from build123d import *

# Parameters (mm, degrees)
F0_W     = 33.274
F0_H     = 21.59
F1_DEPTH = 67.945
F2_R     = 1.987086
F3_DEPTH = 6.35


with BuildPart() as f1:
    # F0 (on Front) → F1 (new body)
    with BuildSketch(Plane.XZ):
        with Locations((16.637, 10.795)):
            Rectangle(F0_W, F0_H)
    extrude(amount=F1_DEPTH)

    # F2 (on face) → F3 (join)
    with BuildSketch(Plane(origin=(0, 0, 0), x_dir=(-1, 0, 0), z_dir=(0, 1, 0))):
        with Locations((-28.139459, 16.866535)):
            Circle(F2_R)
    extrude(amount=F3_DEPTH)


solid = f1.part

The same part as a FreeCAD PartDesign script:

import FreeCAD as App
import Part
import Sketcher

V = App.Vector
Q = App.Units.Quantity


def add_polygon(sketch, points):
    """Adds a closed chain of lines whose ends are joined by coincident constraints."""
    first, n = sketch.GeometryCount, len(points)
    for a, b in zip(points, points[1:] + points[:1]):
        sketch.addGeometry(Part.LineSegment(App.Vector(*a, 0), App.Vector(*b, 0)), False)
    for i in range(n):
        sketch.addConstraint(Sketcher.Constraint("Coincident", first + i, 2, first + (i + 1) % n, 1))

doc = App.newDocument("Part")
body = doc.addObject("PartDesign::Body", "Body")

# Sketch on XZ plane
sketch1 = body.newObject("Sketcher::SketchObject", "Sketch")
sketch1.AttachmentSupport = (doc.getObject("XZ_Plane"), [""])
sketch1.MapMode = "FlatFace"
add_polygon(sketch1, [(0, 22), (0, 0), (33, 0), (33, 22)])  # lines 0-3
sketch1.addConstraint([
    Sketcher.Constraint("Vertical", 0),
    Sketcher.Constraint("Horizontal", 1),
    Sketcher.Constraint("Vertical", 2),
    Sketcher.Constraint("Horizontal", 3),
    Sketcher.Constraint("Coincident", 0, 2, -1, 1),
    Sketcher.Constraint("DistanceX", 1, 1, 1, 2, Q("1.31 in")),
    Sketcher.Constraint("DistanceY", 0, 2, 0, 1, Q("0.85 in")),
])
pad1 = body.newObject("PartDesign::Pad", "Pad")
pad1.Profile = sketch1
pad1.Length = Q("2.675 in")

# Sketch on XZ plane
sketch2 = body.newObject("Sketcher::SketchObject", "Sketch001")
sketch2.AttachmentSupport = (doc.getObject("XZ_Plane"), [""])
sketch2.MapMode = "FlatFace"
sketch2.addGeometry(Part.Circle(V(28.1, 16.9, 0), V(0, 0, 1), 2), False)
sketch2.addConstraint([
    Sketcher.Constraint("Diameter", 0, 3.974172),
    Sketcher.Constraint("DistanceX", -1, 1, 0, 3, 28.139459),
    Sketcher.Constraint("DistanceY", -1, 1, 0, 3, 16.866535),
])
pad2 = body.newObject("PartDesign::Pad", "Pad001")
pad2.Profile = sketch2
pad2.Length = Q("0.25 in")
pad2.Reversed = True

doc.recompute()
